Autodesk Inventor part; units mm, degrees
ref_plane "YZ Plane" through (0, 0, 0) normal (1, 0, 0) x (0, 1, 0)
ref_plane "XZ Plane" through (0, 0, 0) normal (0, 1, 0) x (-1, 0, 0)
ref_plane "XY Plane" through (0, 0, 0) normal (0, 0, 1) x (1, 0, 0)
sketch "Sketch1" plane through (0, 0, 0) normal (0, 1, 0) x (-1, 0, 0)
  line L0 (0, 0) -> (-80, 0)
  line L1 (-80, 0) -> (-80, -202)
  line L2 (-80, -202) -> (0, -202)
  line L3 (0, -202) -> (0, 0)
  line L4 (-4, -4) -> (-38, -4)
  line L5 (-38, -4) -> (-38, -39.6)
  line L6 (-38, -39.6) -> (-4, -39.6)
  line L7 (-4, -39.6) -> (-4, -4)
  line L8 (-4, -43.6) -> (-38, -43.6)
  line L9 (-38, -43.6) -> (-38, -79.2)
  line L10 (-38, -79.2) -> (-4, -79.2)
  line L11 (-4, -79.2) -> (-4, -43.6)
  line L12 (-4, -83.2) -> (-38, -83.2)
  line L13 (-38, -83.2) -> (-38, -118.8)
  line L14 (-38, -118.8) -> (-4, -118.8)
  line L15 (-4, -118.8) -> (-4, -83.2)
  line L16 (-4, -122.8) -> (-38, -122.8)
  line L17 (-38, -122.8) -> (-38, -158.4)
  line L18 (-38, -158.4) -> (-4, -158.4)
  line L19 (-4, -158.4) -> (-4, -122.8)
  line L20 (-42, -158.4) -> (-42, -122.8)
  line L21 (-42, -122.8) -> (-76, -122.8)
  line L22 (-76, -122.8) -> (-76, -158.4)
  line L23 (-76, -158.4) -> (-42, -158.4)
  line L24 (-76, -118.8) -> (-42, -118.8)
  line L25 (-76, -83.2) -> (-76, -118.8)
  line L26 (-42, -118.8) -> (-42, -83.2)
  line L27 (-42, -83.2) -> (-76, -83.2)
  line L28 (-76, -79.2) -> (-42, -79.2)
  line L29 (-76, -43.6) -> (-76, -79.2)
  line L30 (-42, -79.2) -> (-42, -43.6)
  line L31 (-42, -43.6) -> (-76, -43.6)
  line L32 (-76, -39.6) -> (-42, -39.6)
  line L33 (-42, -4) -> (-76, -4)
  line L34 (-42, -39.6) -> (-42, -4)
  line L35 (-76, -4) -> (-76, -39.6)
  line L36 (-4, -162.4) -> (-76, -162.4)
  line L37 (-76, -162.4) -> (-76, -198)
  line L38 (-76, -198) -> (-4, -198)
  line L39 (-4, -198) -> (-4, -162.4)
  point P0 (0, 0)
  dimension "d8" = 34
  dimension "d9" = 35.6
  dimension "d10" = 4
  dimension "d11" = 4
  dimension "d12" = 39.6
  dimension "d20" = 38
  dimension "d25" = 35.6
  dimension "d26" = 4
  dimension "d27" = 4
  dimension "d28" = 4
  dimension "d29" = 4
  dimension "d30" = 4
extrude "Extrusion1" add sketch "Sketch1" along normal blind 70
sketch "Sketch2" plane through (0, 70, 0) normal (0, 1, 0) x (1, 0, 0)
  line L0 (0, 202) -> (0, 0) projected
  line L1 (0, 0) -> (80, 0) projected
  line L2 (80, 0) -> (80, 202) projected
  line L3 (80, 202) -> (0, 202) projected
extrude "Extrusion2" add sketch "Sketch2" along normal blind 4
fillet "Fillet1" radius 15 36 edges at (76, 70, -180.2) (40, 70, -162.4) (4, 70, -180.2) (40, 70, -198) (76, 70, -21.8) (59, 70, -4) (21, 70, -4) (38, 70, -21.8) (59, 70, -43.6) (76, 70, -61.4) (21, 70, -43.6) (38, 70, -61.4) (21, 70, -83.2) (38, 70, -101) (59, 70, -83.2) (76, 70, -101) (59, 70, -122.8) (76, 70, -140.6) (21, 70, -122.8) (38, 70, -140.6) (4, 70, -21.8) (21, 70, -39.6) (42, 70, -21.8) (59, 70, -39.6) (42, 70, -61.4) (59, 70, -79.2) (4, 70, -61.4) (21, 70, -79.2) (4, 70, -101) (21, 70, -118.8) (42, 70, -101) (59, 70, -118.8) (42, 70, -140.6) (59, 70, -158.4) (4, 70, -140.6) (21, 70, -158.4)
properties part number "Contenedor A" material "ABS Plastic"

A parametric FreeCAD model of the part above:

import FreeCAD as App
import Part
import Sketcher

V = App.Vector


def edges_at(feature, points):
    """Names of the edges that pass closest to the given points."""
    edges = feature.Shape.Edges
    near = lambda p: min(range(len(edges)), key=lambda i: edges[i].distToShape(Part.Vertex(*p))[0])
    return sorted({f"Edge{near(p) + 1}" for p in points})


def add_polygon(sketch, points):
    """Adds a closed chain of lines whose ends are joined by coincident constraints."""
    first, n = sketch.GeometryCount, len(points)
    for a, b in zip(points, points[1:] + points[:1]):
        sketch.addGeometry(Part.LineSegment(App.Vector(*a, 0), App.Vector(*b, 0)), False)
    for i in range(n):
        sketch.addConstraint(Sketcher.Constraint("Coincident", first + i, 2, first + (i + 1) % n, 1))

doc = App.newDocument("Part")
body = doc.addObject("PartDesign::Body", "Body")

sketch1 = body.newObject("Sketcher::SketchObject", "Sketch")
sketch1.AttachmentSupport = (doc.getObject("XZ_Plane"), [""])
sketch1.MapMode = "FlatFace"
add_polygon(sketch1, [(0, -202), (0, 0), (80, 0), (80, -202)])
add_polygon(sketch1, [(42, -123), (42, -158), (76, -158), (76, -123)])
add_polygon(sketch1, [(76, -162), (4, -162), (4, -198), (76, -198)])
add_polygon(sketch1, [(38, -123), (4, -123), (4, -158), (38, -158)])
add_polygon(sketch1, [(42, -119), (76, -119), (76, -83), (42, -83)])
add_polygon(sketch1, [(42, -79), (76, -79), (76, -44), (42, -44)])
add_polygon(sketch1, [(42, -40), (76, -40), (76, -4), (42, -4)])
add_polygon(sketch1, [(38, -83), (4, -83), (4, -119), (38, -119)])
add_polygon(sketch1, [(38, -44), (4, -44), (4, -79), (38, -79)])
add_polygon(sketch1, [(38, -4), (4, -4), (4, -40), (38, -40)])
sketch1.addConstraint([
    Sketcher.Constraint("Vertical", 0),
    Sketcher.Constraint("Horizontal", 1),
    Sketcher.Constraint("Vertical", 2),
    Sketcher.Constraint("Horizontal", 3),
    Sketcher.Constraint("Vertical", 4),
    Sketcher.Constraint("Horizontal", 5),
    Sketcher.Constraint("Vertical", 6),
    Sketcher.Constraint("Horizontal", 7),
    Sketcher.Constraint("Horizontal", 8),
    Sketcher.Constraint("Vertical", 9),
    Sketcher.Constraint("Horizontal", 10),
    Sketcher.Constraint("Vertical", 11),
    Sketcher.Constraint("Horizontal", 12),
    Sketcher.Constraint("Vertical", 13),
    Sketcher.Constraint("Horizontal", 14),
    Sketcher.Constraint("Vertical", 15),
    Sketcher.Constraint("Horizontal", 16),
    Sketcher.Constraint("Vertical", 17),
    Sketcher.Constraint("Horizontal", 18),
    Sketcher.Constraint("Vertical", 19),
    Sketcher.Constraint("Horizontal", 20),
    Sketcher.Constraint("Vertical", 21),
    Sketcher.Constraint("Horizontal", 22),
    Sketcher.Constraint("Vertical", 23),
    Sketcher.Constraint("Horizontal", 24),
    Sketcher.Constraint("Vertical", 25),
    Sketcher.Constraint("Horizontal", 26),
    Sketcher.Constraint("Vertical", 27),
    Sketcher.Constraint("Horizontal", 28),
    Sketcher.Constraint("Vertical", 29),
    Sketcher.Constraint("Horizontal", 30),
    Sketcher.Constraint("Vertical", 31),
    Sketcher.Constraint("Horizontal", 32),
    Sketcher.Constraint("Vertical", 33),
    Sketcher.Constraint("Horizontal", 34),
    Sketcher.Constraint("Vertical", 35),
    Sketcher.Constraint("Horizontal", 36),
    Sketcher.Constraint("Vertical", 37),
    Sketcher.Constraint("Horizontal", 38),
    Sketcher.Constraint("Vertical", 39),
    Sketcher.Constraint("Coincident", 0, 2, -1, 1),
    Sketcher.Constraint("Horizontal", 7, 2, 12, 2),
    Sketcher.Constraint("Horizontal", 5, 2, 13, 2),
    Sketcher.Constraint("Horizontal", 18, 2, 28, 2),
    Sketcher.Constraint("Horizontal", 19, 2, 29, 2),
    Sketcher.Constraint("Horizontal", 22, 2, 32, 2),
    Sketcher.Constraint("Horizontal", 23, 2, 33, 2),
    Sketcher.Constraint("Horizontal", 26, 2, 36, 2),
    Sketcher.Constraint("Horizontal", 27, 2, 37, 2),
    Sketcher.Constraint("Vertical", 6, 2, 10, 2),
    Sketcher.Constraint("Vertical", 9, 2, 12, 2),
    Sketcher.Constraint("Vertical", 11, 2, 16, 2),
    Sketcher.Constraint("Vertical", 7, 2, 18, 2),
    Sketcher.Constraint("Vertical", 17, 2, 20, 2),
    Sketcher.Constraint("Vertical", 19, 2, 22, 2),
    Sketcher.Constraint("Vertical", 21, 2, 24, 2),
    Sketcher.Constraint("Vertical", 23, 2, 26, 2),
    Sketcher.Constraint("Vertical", 13, 2, 28, 2),
    Sketcher.Constraint("Vertical", 15, 2, 30, 2),
    Sketcher.Constraint("Vertical", 29, 2, 32, 2),
    Sketcher.Constraint("Vertical", 31, 2, 34, 2),
    Sketcher.Constraint("Vertical", 33, 2, 36, 2),
    Sketcher.Constraint("Vertical", 35, 2, 38, 2),
    Sketcher.Constraint("Equal", 7, 12),
    Sketcher.Constraint("Equal", 6, 9),
    Sketcher.Constraint("Equal", 15, 17),
    Sketcher.Constraint("Equal", 19, 21),
    Sketcher.Constraint("Equal", 23, 25),
    Sketcher.Constraint("DistanceX", 5, 1, 5, 2, 34.0),
    Sketcher.Constraint("DistanceY", 4, 2, 4, 1, 35.6),
    Sketcher.Constraint("DistanceX", -1, 1, 8, 2, 4.0),
    Sketcher.Constraint("DistanceY", 25, 2, -1, 1, 4.0),
    Sketcher.Constraint("DistanceX", 4, 2, 2, 2, 38.0),
    Sketcher.Constraint("DistanceX", 8, 2, 4, 2, 38.0),
    Sketcher.Constraint("DistanceY", 8, 2, 4, 2, 4.0),
    Sketcher.Constraint("DistanceY", 3, 2, 9, 2, 4.0),
    Sketcher.Constraint("DistanceY", 6, 2, 16, 2, 4.0),
    Sketcher.Constraint("DistanceY", 17, 2, 20, 2, 4.0),
    Sketcher.Constraint("DistanceY", 21, 2, 24, 2, 4.0),
])
pad1 = body.newObject("PartDesign::Pad", "Pad")
pad1.Profile = sketch1
pad1.Length = 70
pad1.Reversed = True

sketch2 = body.newObject("Sketcher::SketchObject", "Sketch001")
sketch2.AttachmentSupport = (doc.getObject("XZ_Plane"), [""])
sketch2.MapMode = "FlatFace"
sketch2.AttachmentOffset = App.Placement(V(0, 0, -70), App.Rotation())
add_polygon(sketch2, [(80, -202), (0, -202), (0, 0), (80, 0)])
sketch2.addConstraint([
    Sketcher.Constraint("Horizontal", 0),
    Sketcher.Constraint("Vertical", 1),
    Sketcher.Constraint("Horizontal", 2),
    Sketcher.Constraint("Vertical", 3),
    Sketcher.Constraint("Coincident", 1, 2, -1, 1),
    Sketcher.Constraint("DistanceX", 0, 2, 0, 1, 80.0),
    Sketcher.Constraint("DistanceY", 1, 1, 1, 2, 202.0),
])
pad2 = body.newObject("PartDesign::Pad", "Pad001")
pad2.Profile = sketch2
pad2.Length = 4
pad2.Reversed = True
doc.recompute()

fillet = body.newObject("PartDesign::Fillet", "Fillet")
fillet.Base = (pad2, edges_at(pad2, [
    (76, 70, -180.2),
    (40, 70, -162.4),
    (4, 70, -180.2),
    (40, 70, -198),
    (76, 70, -21.8),
    (59, 70, -4),
    (21, 70, -4),
    (38, 70, -21.8),
    (59, 70, -43.6),
    (76, 70, -61.4),
    (21, 70, -43.6),
    (38, 70, -61.4),
    (21, 70, -83.2),
    (38, 70, -101),
    (59, 70, -83.2),
    (76, 70, -101),
    (59, 70, -122.8),
    (76, 70, -140.6),
    (21, 70, -122.8),
    (38, 70, -140.6),
    (4, 70, -21.8),
    (21, 70, -39.6),
    (42, 70, -21.8),
    (59, 70, -39.6),
    (42, 70, -61.4),
    (59, 70, -79.2),
    (4, 70, -61.4),
    (21, 70, -79.2),
    (4, 70, -101),
    (21, 70, -118.8),
    (42, 70, -101),
    (59, 70, -118.8),
    (42, 70, -140.6),
    (59, 70, -158.4),
    (4, 70, -140.6),
    (21, 70, -158.4),
]))
fillet.Radius = 15

doc.recompute()
